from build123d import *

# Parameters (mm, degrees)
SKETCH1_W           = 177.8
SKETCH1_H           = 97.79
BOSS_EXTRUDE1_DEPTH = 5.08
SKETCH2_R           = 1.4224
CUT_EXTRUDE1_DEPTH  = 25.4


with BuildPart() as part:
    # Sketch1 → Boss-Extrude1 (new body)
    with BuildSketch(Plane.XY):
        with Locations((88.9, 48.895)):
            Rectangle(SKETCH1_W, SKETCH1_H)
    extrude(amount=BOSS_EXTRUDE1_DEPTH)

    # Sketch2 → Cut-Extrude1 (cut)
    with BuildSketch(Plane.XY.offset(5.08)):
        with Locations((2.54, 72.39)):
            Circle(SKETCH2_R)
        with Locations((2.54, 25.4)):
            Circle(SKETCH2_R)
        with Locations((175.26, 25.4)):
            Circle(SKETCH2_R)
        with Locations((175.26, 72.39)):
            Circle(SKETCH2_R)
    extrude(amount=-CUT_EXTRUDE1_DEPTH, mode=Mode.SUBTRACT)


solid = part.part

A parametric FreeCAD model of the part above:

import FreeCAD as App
import Part
import Sketcher
Q = App.Units.Quantity


def add_polygon(sketch, points):
    """Adds a closed chain of lines whose ends are joined by coincident constraints."""
    first, n = sketch.GeometryCount, len(points)
    for a, b in zip(points, points[1:] + points[:1]):
        sketch.addGeometry(Part.LineSegment(App.Vector(*a, 0), App.Vector(*b, 0)), False)
    for i in range(n):
        sketch.addConstraint(Sketcher.Constraint("Coincident", first + i, 2, first + (i + 1) % n, 1))

doc = App.newDocument("Part")
body = doc.addObject("PartDesign::Body", "Body")

sketch1 = body.newObject("Sketcher::SketchObject", "Sketch")
sketch1.AttachmentSupport = (doc.getObject("XY_Plane"), [""])
sketch1.MapMode = "FlatFace"
add_polygon(sketch1, [(0, 98), (0, 0), (178, 0), (178, 98)])
sketch1.addConstraint([
    Sketcher.Constraint("Vertical", 0),
    Sketcher.Constraint("Horizontal", 1),
    Sketcher.Constraint("Vertical", 2),
    Sketcher.Constraint("Horizontal", 3),
    Sketcher.Constraint("Coincident", 0, 2, -1, 1),
    Sketcher.Constraint("DistanceX", 1, 1, 1, 2, Q("7 in")),
    Sketcher.Constraint("DistanceY", 0, 2, 0, 1, Q("3.85 in")),
])
pad1 = body.newObject("PartDesign::Pad", "Pad")
pad1.Profile = sketch1
pad1.Length = Q("0.2 in")

sketch2 = body.newObject("Sketcher::SketchObject", "Sketch001")
sketch2.AttachmentSupport = (doc.getObject("XY_Plane"), [""])
sketch2.MapMode = "FlatFace"
sketch2.AttachmentOffset = App.Placement(App.Vector(0, 0, 0.2 * 25.4), App.Rotation())
sketch2.addGeometry([
    Part.Circle(App.Vector(2.5, 72.4, 0), App.Vector(0, 0, 1), 1.4),
    Part.Circle(App.Vector(2.5, 25.4, 0), App.Vector(0, 0, 1), 1.4),
    Part.Circle(App.Vector(175.3, 25.4, 0), App.Vector(0, 0, 1), 1.4),
    Part.Circle(App.Vector(175.3, 72.4, 0), App.Vector(0, 0, 1), 1.4),
], False)
sketch2.addConstraint([
    Sketcher.Constraint("Equal", 0, 1),
    Sketcher.Constraint("Equal", 1, 2),
    Sketcher.Constraint("Equal", 2, 3),
    Sketcher.Constraint("Horizontal", 1, 3, 2, 3),
    Sketcher.Constraint("Horizontal", 0, 3, 3, 3),
    Sketcher.Constraint("Vertical", 0, 3, 1, 3),
    Sketcher.Constraint("Vertical", 2, 3, 3, 3),
    Sketcher.Constraint("Diameter", 0, Q("0.112 in")),
    Sketcher.Constraint("DistanceY", -1, 1, 1, 3, Q("1 in")),
    Sketcher.Constraint("DistanceX", -1, 1, 0, 3, Q("0.1 in")),
    Sketcher.Constraint("DistanceX", -1, 1, 2, 3, Q("6.9 in")),
    Sketcher.Constraint("DistanceY", -1, 1, 0, 3, Q("2.85 in")),
])
pocket1 = body.newObject("PartDesign::Pocket", "Pocket")
pocket1.Profile = sketch2
pocket1.Length = Q("1 in")

doc.recompute()
